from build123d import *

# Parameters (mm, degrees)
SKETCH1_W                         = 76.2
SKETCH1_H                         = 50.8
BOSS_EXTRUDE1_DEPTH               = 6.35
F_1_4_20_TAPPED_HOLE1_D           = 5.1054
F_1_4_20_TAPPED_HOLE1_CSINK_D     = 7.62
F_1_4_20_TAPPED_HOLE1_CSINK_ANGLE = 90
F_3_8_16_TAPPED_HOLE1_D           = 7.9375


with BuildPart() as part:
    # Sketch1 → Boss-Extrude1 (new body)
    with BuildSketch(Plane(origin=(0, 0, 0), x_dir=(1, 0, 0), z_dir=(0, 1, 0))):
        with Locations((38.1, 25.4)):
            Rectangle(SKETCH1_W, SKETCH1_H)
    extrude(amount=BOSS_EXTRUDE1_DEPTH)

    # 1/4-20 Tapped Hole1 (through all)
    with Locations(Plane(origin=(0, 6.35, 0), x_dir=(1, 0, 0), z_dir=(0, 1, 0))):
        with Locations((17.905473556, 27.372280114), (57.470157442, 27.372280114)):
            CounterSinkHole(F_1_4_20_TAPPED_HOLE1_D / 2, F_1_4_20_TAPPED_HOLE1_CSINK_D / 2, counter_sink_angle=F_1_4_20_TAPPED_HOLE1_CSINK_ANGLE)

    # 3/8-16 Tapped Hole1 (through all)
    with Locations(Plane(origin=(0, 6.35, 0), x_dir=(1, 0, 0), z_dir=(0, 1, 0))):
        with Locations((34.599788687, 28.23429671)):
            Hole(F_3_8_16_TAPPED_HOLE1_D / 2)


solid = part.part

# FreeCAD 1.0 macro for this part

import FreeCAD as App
import Part
import Sketcher

V = App.Vector
Q = App.Units.Quantity

doc = App.newDocument("Part")
body = doc.addObject("PartDesign::Body", "Body")

sketch1 = body.newObject("Sketcher::SketchObject", "Sketch")
sketch1.AttachmentSupport = (doc.getObject("XZ_Plane"), [""])
sketch1.MapMode = "FlatFace"
sketch1.addGeometry([
    Part.LineSegment(V(0, -50.8, 0), V(0, 0, 0)),
    Part.LineSegment(V(0, 0, 0), V(76.2, 0, 0)),
    Part.LineSegment(V(76.2, 0, 0), V(76.2, -50.8, 0)),
    Part.LineSegment(V(76.2, -50.8, 0), V(0, -50.8, 0)),
], False)
sketch1.addConstraint([
    Sketcher.Constraint("Coincident", 0, 2, 1, 1),
    Sketcher.Constraint("Coincident", 1, 2, 2, 1),
    Sketcher.Constraint("Coincident", 2, 2, 3, 1),
    Sketcher.Constraint("Coincident", 3, 2, 0, 1),
    Sketcher.Constraint("Vertical", 0),
    Sketcher.Constraint("Horizontal", 1),
    Sketcher.Constraint("Vertical", 2),
    Sketcher.Constraint("Horizontal", 3),
    Sketcher.Constraint("Coincident", 0, 2, -1, 1),
    Sketcher.Constraint("DistanceX", 1, 1, 1, 2, Q("3 in")),
    Sketcher.Constraint("DistanceY", 0, 1, 0, 2, Q("2 in")),
])
pad1 = body.newObject("PartDesign::Pad", "Pad")
pad1.Profile = sketch1
pad1.Length = Q("0.25 in")
pad1.Reversed = True

sketch2 = body.newObject("Sketcher::SketchObject", "Sketch001")
sketch2.AttachmentSupport = (doc.getObject("XZ_Plane"), [""])
sketch2.MapMode = "FlatFace"
sketch2.AttachmentOffset = App.Placement(V(0, 0, -0.25 * 25.4), App.Rotation())
sketch2.addGeometry([
    Part.Circle(V(17.905474, -27.37228, 0), V(0, 0, 1), 2.5527),
    Part.Circle(V(57.470157, -27.37228, 0), V(0, 0, 1), 2.5527),
], False)
sketch2.addConstraint([
    Sketcher.Constraint("Equal", 0, 1),
    Sketcher.Constraint("Horizontal", 0, 3, 1, 3),
    Sketcher.Constraint("Diameter", 0, Q("0.201 in")),
    Sketcher.Constraint("DistanceY", 0, 3, -1, 1, 27.37228),
    Sketcher.Constraint("DistanceX", -1, 1, 0, 3, 17.905474),
    Sketcher.Constraint("DistanceX", -1, 1, 1, 3, 57.470157),
])
doc.recompute()
hole = body.newObject("PartDesign::Hole", "Hole")
hole.Profile = sketch2
hole.ThreadType = "None"
hole.Diameter = Q("0.201 in")
hole.DepthType = "ThroughAll"
hole.HoleCutType = "Countersink"
hole.HoleCutDiameter = Q("0.3 in")
hole.HoleCutCountersinkAngle = 90
hole.Reversed = True

sketch3 = body.newObject("Sketcher::SketchObject", "Sketch002")
sketch3.AttachmentSupport = (doc.getObject("XZ_Plane"), [""])
sketch3.MapMode = "FlatFace"
sketch3.AttachmentOffset = App.Placement(V(0, 0, -0.25 * 25.4), App.Rotation())
sketch3.addGeometry(Part.Circle(V(34.599789, -28.234297, 0), V(0, 0, 1), 3.96875), False)
sketch3.addConstraint([
    Sketcher.Constraint("Diameter", 0, Q("0.3125 in")),
    Sketcher.Constraint("DistanceX", -1, 1, 0, 3, 34.599789),
    Sketcher.Constraint("DistanceY", 0, 3, -1, 1, 28.234297),
])
doc.recompute()
hole2 = body.newObject("PartDesign::Hole", "Hole001")
hole2.Profile = sketch3
hole2.ThreadType = "None"
hole2.Diameter = Q("0.3125 in")
hole2.DepthType = "ThroughAll"
hole2.Reversed = True

doc.recompute()
